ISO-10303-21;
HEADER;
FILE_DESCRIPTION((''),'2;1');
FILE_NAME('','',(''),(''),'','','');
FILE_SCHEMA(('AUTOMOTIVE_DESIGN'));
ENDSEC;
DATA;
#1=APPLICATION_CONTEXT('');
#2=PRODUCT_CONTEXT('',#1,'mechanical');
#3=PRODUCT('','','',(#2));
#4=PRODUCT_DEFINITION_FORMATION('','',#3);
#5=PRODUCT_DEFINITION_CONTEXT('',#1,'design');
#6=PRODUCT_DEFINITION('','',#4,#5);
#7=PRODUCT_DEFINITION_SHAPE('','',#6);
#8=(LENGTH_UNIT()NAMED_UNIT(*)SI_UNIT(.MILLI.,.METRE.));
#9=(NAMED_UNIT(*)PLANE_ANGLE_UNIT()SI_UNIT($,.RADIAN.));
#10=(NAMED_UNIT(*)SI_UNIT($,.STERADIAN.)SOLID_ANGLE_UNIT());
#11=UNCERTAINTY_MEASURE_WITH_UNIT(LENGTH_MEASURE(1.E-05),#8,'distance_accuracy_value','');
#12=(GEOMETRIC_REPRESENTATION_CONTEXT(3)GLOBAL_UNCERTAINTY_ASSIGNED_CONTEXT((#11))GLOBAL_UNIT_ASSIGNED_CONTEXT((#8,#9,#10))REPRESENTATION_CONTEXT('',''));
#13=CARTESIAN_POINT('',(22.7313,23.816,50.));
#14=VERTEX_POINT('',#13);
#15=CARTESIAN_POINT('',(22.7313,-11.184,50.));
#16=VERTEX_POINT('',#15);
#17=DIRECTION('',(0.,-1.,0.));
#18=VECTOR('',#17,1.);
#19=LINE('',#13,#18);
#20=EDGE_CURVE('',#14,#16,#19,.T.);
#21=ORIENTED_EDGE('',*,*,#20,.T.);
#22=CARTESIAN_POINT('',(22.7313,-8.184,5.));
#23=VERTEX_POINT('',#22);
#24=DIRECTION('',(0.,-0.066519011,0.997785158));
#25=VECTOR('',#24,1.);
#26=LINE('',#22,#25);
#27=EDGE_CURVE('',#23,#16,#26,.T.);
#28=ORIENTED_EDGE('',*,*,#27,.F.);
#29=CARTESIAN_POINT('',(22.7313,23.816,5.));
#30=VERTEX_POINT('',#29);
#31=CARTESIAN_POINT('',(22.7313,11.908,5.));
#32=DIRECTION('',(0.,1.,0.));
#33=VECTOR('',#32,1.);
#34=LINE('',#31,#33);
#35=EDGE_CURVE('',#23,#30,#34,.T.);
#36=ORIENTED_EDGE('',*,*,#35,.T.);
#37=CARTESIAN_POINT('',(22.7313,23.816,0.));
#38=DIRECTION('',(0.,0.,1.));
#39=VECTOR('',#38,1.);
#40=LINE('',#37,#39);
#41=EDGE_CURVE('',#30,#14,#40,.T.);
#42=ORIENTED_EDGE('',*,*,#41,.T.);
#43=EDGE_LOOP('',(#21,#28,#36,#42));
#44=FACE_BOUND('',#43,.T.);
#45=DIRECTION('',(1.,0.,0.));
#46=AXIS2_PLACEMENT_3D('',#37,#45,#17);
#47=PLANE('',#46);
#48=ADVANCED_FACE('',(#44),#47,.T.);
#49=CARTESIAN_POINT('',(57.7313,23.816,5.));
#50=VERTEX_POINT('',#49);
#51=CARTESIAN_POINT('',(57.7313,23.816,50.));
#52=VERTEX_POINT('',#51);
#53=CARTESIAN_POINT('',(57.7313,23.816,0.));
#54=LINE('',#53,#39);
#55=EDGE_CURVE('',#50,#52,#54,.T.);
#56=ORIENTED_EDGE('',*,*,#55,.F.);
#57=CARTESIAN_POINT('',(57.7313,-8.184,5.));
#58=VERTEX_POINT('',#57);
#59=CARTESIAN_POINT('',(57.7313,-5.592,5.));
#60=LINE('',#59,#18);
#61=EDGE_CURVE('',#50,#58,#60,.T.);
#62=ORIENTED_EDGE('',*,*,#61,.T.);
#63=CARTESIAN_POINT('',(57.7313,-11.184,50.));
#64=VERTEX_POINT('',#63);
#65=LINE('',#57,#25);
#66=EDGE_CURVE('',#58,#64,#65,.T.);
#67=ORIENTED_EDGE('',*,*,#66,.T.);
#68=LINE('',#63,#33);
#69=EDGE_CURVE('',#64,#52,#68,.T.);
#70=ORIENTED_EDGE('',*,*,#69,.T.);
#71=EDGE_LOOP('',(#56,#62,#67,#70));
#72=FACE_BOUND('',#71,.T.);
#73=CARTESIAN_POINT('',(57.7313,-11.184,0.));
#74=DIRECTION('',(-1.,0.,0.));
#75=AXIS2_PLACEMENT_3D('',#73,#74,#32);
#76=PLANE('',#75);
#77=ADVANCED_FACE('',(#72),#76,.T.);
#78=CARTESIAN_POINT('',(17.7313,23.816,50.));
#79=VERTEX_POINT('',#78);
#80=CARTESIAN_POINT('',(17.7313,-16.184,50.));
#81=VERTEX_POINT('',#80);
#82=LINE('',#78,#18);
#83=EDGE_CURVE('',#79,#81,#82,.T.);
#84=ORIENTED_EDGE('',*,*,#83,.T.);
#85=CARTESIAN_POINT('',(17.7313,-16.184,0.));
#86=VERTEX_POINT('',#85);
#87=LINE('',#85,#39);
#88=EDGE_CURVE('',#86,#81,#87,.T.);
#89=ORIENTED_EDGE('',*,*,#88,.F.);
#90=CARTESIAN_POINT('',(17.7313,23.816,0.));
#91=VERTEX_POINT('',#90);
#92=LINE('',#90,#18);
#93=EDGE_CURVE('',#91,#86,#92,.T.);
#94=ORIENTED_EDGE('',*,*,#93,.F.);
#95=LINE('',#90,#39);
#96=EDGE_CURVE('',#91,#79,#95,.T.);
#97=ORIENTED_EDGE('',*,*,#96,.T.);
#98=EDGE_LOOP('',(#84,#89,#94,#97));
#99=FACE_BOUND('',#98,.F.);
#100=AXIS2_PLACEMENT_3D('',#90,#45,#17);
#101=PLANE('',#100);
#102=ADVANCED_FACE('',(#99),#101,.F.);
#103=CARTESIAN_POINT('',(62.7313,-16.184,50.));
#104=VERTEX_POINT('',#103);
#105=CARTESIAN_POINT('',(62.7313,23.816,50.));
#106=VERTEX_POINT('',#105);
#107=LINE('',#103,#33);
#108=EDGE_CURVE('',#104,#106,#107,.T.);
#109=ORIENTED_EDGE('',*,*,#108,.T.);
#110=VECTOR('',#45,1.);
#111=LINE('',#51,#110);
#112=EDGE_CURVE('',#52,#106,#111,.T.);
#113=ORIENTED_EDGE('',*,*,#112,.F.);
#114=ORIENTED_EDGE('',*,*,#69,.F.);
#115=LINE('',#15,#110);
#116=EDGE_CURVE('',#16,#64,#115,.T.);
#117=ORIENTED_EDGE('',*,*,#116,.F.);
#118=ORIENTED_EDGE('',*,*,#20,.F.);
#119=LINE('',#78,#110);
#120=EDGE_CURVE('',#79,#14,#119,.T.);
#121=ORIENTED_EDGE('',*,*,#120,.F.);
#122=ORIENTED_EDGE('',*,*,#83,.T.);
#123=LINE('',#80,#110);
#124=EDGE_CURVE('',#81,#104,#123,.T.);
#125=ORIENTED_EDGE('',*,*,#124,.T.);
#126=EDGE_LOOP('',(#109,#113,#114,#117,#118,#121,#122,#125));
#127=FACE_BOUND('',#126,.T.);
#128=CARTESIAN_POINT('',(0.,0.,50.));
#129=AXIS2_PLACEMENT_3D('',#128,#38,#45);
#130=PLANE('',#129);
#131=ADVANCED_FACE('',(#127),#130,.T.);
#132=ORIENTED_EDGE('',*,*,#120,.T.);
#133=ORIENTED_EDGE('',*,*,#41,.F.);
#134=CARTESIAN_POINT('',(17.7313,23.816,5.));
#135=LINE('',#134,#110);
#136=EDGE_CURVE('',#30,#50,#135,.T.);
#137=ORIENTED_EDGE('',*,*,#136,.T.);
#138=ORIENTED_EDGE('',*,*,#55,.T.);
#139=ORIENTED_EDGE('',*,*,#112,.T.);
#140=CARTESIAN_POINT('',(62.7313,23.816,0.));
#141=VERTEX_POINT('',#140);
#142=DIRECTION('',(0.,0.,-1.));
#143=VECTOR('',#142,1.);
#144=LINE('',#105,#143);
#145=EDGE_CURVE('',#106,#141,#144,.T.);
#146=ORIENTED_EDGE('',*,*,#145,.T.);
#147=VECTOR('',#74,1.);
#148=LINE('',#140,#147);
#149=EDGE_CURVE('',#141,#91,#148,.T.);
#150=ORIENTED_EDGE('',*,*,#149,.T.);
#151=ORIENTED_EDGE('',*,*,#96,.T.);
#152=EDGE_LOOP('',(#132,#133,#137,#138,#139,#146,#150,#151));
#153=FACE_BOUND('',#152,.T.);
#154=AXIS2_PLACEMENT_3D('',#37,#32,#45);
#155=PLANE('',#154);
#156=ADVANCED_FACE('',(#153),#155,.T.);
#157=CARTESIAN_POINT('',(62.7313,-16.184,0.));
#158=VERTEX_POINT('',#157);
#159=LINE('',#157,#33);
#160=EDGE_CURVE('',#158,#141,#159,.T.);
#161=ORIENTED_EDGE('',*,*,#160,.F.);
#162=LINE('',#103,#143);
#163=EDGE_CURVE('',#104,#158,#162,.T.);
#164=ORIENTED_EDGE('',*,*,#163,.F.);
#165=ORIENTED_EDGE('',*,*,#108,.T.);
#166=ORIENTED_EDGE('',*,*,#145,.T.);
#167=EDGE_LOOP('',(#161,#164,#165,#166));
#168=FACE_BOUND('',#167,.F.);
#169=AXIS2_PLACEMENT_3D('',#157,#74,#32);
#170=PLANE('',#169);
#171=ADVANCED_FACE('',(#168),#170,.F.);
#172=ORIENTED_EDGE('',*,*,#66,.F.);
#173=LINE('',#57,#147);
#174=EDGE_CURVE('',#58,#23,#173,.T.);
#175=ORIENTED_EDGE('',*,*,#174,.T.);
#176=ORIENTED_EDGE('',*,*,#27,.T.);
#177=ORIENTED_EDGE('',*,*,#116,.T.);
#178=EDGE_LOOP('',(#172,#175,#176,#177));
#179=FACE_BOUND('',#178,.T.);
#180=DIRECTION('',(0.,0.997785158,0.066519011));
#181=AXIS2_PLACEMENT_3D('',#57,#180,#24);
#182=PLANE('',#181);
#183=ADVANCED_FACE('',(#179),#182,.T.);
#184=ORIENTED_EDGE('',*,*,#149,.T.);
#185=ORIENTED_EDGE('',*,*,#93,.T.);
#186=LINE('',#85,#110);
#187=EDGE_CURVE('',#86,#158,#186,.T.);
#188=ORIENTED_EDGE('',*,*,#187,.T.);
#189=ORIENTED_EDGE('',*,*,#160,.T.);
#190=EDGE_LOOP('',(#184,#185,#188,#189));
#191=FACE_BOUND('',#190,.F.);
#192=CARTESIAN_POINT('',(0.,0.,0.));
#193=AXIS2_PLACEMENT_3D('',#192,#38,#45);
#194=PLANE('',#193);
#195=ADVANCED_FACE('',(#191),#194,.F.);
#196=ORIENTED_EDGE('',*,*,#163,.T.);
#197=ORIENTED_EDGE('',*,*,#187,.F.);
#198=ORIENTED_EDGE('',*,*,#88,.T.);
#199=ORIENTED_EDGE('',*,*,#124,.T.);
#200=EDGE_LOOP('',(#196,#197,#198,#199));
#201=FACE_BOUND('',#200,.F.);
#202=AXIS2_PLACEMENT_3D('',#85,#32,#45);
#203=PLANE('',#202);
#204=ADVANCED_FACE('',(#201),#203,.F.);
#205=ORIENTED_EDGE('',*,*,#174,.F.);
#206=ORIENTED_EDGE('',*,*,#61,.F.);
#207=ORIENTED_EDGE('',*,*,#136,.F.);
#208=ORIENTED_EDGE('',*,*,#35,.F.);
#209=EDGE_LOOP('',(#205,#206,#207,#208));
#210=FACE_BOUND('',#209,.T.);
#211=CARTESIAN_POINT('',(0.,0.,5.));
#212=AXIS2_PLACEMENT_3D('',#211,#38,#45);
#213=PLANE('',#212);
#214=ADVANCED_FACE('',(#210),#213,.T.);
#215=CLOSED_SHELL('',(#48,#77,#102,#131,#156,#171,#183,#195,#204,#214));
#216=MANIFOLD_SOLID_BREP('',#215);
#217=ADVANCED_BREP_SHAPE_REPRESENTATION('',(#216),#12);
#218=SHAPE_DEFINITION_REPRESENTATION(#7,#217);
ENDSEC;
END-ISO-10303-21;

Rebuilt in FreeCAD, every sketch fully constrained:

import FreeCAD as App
import Part
import Sketcher

V = App.Vector


def add_polygon(sketch, points):
    """Adds a closed chain of lines whose ends are joined by coincident constraints."""
    first, n = sketch.GeometryCount, len(points)
    for a, b in zip(points, points[1:] + points[:1]):
        sketch.addGeometry(Part.LineSegment(App.Vector(*a, 0), App.Vector(*b, 0)), False)
    for i in range(n):
        sketch.addConstraint(Sketcher.Constraint("Coincident", first + i, 2, first + (i + 1) % n, 1))

doc = App.newDocument("Part")
body = doc.addObject("PartDesign::Body", "Body")

sketch1 = body.newObject("Sketcher::SketchObject", "Sketch")
sketch1.AttachmentSupport = (doc.getObject("XY_Plane"), [""])
sketch1.MapMode = "FlatFace"
add_polygon(sketch1, [(17.7313, 23.816), (17.7313, -16.184), (62.7313, -16.184), (62.7313, 23.816)])
sketch1.addConstraint([
    Sketcher.Constraint("Vertical", 0),
    Sketcher.Constraint("Horizontal", 1),
    Sketcher.Constraint("Vertical", 2),
    Sketcher.Constraint("Horizontal", 3),
    Sketcher.Constraint("DistanceX", 1, 1, 1, 2, 45.0),
    Sketcher.Constraint("DistanceY", 0, 2, 0, 1, 40.0),
    Sketcher.Constraint("DistanceY", 0, 2, -1, 1, 16.184),
    Sketcher.Constraint("DistanceX", -1, 1, 0, 2, 17.7313),
])
pad1 = body.newObject("PartDesign::Pad", "Pad")
pad1.Profile = sketch1
pad1.Length = 5

sketch2 = body.newObject("Sketcher::SketchObject", "Sketch001")
sketch2.AttachmentSupport = (doc.getObject("XY_Plane"), [""])
sketch2.MapMode = "FlatFace"
add_polygon(sketch2, [(22.7313, -11.184), (22.7313, 23.816), (17.7313, 23.816), (17.7313, -16.184), (62.7313, -16.184), (62.7313, 23.816), (57.7313, 23.816), (57.7313, -11.184)])
sketch2.addConstraint([
    Sketcher.Constraint("Vertical", 0),
    Sketcher.Constraint("Horizontal", 1),
    Sketcher.Constraint("Vertical", 2),
    Sketcher.Constraint("Horizontal", 3),
    Sketcher.Constraint("Vertical", 4),
    Sketcher.Constraint("Horizontal", 5),
    Sketcher.Constraint("Vertical", 6),
    Sketcher.Constraint("Horizontal", 7),
    Sketcher.Constraint("Horizontal", 1, 2, 4, 2),
    Sketcher.Constraint("Equal", 1, 5),
    Sketcher.Constraint("Equal", 7, 0),
    Sketcher.Constraint("DistanceX", 1, 2, 1, 1, 5.0),
    Sketcher.Constraint("DistanceX", 7, 2, 7, 1, 35.0),
    Sketcher.Constraint("DistanceY", 3, 2, 6, 2, 5.0),
    Sketcher.Constraint("DistanceY", -1, 1, 0, 2, 23.816),
    Sketcher.Constraint("DistanceX", -1, 1, 0, 2, 22.7313),
])
pad2 = body.newObject("PartDesign::Pad", "Pad001")
pad2.Profile = sketch2
pad2.Length = 50

sketch3 = body.newObject("Sketcher::SketchObject", "Sketch002")
sketch3.AttachmentSupport = (doc.getObject("YZ_Plane"), [""])
sketch3.MapMode = "FlatFace"
sketch3.AttachmentOffset = App.Placement(V(0, 0, 57.7313), App.Rotation())
add_polygon(sketch3, [(-11.184, 50), (-8.184, 5), (-11.184, 5)])
sketch3.addConstraint([
    Sketcher.Constraint("Horizontal", 1),
    Sketcher.Constraint("Vertical", 2),
    Sketcher.Constraint("DistanceX", 1, 2, 1, 1, 3.0),
    Sketcher.Constraint("DistanceY", 2, 1, 2, 2, 45.0),
    Sketcher.Constraint("DistanceY", -1, 1, 0, 2, 5.0),
    Sketcher.Constraint("DistanceX", 0, 2, -1, 1, 8.184),
])
pad3 = body.newObject("PartDesign::Pad", "Pad002")
pad3.Profile = sketch3
pad3.Length = 35
pad3.Reversed = True

doc.recompute()
